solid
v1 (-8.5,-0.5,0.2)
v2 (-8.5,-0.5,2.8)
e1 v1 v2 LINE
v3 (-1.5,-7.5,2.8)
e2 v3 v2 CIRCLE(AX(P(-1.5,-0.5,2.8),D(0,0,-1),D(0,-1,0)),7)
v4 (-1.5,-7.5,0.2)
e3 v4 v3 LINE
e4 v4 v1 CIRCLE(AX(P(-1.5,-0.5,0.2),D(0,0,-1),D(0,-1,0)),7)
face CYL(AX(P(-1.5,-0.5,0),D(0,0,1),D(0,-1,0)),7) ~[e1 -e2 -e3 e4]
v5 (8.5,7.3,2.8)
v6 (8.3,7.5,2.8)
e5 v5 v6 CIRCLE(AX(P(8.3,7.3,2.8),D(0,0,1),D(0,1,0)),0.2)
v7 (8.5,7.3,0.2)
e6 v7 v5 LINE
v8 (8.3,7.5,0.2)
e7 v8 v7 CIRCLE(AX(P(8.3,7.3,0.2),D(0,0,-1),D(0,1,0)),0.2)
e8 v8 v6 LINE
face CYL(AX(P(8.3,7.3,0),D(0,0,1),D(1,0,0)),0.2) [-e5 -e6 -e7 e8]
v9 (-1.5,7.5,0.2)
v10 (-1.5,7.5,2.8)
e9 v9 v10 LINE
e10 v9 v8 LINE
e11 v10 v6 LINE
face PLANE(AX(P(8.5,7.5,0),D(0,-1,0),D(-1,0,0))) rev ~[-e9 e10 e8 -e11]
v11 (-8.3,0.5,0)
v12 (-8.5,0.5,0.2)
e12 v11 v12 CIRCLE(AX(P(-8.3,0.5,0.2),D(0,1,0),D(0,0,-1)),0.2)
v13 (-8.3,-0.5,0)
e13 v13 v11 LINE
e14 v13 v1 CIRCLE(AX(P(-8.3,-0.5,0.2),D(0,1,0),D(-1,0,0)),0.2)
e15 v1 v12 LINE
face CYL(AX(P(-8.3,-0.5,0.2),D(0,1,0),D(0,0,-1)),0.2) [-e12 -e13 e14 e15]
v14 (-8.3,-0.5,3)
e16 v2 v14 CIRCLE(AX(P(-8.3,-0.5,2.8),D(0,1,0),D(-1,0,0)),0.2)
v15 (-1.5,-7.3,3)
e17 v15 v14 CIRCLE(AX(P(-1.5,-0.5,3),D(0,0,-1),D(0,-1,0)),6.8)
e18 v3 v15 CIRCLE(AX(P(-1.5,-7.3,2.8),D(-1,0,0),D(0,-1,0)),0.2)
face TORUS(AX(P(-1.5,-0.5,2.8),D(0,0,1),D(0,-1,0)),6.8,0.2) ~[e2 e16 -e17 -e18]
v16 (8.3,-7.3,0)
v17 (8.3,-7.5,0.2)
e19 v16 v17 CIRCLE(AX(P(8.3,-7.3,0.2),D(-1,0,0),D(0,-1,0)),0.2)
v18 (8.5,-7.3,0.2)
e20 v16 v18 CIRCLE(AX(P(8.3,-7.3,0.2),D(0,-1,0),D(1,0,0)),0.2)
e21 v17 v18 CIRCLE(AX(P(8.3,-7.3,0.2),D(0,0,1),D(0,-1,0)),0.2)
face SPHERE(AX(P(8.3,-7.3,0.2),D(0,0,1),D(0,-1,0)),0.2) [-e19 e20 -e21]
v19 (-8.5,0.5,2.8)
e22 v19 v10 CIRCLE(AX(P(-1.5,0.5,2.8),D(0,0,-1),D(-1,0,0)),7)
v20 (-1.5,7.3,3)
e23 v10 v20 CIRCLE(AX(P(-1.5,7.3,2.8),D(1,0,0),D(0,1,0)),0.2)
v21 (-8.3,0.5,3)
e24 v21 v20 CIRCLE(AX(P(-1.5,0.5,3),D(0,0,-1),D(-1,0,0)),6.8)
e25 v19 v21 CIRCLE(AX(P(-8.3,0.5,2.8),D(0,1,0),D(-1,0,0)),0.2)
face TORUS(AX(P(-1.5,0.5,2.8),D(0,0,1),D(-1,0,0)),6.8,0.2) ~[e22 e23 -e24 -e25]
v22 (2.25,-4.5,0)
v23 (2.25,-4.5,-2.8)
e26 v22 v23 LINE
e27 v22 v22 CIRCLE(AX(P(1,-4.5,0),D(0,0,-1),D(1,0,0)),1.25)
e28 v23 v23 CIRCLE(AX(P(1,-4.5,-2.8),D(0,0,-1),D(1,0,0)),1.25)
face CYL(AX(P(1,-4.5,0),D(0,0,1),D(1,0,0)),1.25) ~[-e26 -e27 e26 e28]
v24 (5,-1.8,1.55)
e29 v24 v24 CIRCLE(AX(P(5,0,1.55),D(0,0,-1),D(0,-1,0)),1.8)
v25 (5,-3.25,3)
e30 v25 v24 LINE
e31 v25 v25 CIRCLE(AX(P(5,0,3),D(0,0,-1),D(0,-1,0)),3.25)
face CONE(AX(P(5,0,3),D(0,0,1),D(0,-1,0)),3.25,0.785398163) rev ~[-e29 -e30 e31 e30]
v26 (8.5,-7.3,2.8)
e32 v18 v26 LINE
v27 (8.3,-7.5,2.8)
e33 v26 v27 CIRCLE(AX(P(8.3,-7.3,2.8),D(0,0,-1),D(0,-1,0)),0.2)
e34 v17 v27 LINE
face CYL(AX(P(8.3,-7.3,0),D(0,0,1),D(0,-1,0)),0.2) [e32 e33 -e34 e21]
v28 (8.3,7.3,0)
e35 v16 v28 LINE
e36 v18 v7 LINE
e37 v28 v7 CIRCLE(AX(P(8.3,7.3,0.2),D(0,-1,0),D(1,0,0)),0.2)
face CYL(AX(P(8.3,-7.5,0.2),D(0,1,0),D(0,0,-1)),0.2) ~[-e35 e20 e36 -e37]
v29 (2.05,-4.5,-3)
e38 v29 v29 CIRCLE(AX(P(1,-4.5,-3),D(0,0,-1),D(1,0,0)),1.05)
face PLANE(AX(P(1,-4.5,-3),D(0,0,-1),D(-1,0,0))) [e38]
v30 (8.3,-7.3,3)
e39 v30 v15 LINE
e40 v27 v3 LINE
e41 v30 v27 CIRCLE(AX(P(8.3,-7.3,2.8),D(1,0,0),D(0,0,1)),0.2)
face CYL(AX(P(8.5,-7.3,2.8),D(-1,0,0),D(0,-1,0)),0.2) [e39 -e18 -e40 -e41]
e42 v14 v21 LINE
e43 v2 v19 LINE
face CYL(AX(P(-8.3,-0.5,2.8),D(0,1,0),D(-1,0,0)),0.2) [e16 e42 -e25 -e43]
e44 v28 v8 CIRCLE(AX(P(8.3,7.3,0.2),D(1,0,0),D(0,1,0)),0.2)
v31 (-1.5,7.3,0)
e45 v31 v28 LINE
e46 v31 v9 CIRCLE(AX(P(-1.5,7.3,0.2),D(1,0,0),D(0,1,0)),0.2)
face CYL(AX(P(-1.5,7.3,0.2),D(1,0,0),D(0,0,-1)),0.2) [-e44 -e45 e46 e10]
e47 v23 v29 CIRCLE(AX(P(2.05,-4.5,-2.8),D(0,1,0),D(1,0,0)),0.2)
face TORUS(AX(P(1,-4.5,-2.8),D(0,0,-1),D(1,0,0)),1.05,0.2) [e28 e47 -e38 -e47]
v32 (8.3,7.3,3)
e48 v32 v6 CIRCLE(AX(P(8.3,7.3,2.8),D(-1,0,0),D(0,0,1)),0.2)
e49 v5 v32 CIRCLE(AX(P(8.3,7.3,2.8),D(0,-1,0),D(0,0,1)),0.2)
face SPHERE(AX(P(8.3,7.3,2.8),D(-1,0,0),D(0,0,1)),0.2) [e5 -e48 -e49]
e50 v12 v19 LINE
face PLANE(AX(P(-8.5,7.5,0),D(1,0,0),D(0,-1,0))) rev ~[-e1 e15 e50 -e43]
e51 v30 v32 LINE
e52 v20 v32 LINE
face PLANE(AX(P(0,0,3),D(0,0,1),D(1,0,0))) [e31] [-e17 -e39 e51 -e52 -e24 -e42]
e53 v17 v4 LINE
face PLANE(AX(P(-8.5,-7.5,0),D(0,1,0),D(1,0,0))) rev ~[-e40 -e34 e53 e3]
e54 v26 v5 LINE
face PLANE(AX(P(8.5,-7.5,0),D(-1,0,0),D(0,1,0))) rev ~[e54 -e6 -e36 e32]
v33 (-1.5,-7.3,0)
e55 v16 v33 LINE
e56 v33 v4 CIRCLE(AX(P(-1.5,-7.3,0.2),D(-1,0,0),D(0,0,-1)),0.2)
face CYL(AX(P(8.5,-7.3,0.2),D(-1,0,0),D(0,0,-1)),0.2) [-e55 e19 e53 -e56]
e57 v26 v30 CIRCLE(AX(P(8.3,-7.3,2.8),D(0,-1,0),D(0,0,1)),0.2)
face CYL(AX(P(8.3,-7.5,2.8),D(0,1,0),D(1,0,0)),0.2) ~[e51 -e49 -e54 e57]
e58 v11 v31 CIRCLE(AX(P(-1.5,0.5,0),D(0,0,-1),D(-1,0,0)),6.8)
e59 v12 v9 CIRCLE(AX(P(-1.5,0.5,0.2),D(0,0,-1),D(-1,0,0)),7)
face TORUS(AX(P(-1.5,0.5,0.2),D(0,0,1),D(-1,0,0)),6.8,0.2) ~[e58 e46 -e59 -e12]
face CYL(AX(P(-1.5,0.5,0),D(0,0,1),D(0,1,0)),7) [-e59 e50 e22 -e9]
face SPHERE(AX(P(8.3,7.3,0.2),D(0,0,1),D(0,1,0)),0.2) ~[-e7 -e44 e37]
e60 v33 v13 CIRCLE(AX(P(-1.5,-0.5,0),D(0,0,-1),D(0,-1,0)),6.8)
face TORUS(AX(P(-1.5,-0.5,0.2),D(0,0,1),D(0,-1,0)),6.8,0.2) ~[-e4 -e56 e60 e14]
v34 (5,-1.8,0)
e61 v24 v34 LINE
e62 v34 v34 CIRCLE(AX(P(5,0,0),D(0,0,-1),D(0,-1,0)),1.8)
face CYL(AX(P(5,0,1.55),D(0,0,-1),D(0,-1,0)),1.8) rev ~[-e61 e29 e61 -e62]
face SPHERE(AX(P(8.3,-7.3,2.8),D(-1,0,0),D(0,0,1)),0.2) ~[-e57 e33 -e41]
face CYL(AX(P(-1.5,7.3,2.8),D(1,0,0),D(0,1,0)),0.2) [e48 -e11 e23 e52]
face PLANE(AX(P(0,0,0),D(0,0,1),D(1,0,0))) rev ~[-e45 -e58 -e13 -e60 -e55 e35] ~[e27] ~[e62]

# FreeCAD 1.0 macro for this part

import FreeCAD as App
import Part
import Sketcher
from FreeCAD import Vector


def edges_at(feature, points):
    """Names of the edges that pass closest to the given points."""
    edges = feature.Shape.Edges
    near = lambda p: min(range(len(edges)), key=lambda i: edges[i].distToShape(Part.Vertex(*p))[0])
    return sorted({f"Edge{near(p) + 1}" for p in points})

doc = App.newDocument("Part")
body = doc.addObject("PartDesign::Body", "Body")

# Sketch on XY plane
sketch1 = body.newObject("Sketcher::SketchObject", "Sketch")
sketch1.AttachmentSupport = (doc.getObject("XY_Plane"), [""])
sketch1.MapMode = "FlatFace"
sketch1.addGeometry(Part.LineSegment(Vector(-8, 8, 0), Vector(-8, -8, 0)), False)
sketch1.addGeometry(Part.LineSegment(Vector(-8, -8, 0), Vector(8, -8, 0)), False)
sketch1.addGeometry(Part.LineSegment(Vector(8, -8, 0), Vector(8, 8, 0)), False)
sketch1.addGeometry(Part.LineSegment(Vector(8, 8, 0), Vector(-8, 8, 0)), False)
sketch1.addConstraint(Sketcher.Constraint("Coincident", 0, 2, 1, 1))
sketch1.addConstraint(Sketcher.Constraint("Coincident", 1, 2, 2, 1))
sketch1.addConstraint(Sketcher.Constraint("Coincident", 2, 2, 3, 1))
sketch1.addConstraint(Sketcher.Constraint("Coincident", 3, 2, 0, 1))
sketch1.addConstraint(Sketcher.Constraint("Vertical", 0))
sketch1.addConstraint(Sketcher.Constraint("Horizontal", 1))
sketch1.addConstraint(Sketcher.Constraint("Vertical", 2))
sketch1.addConstraint(Sketcher.Constraint("Horizontal", 3))
sketch1.addConstraint(Sketcher.Constraint("Symmetric", 0, 2, 2, 2, -1, 1))
sketch1.addConstraint(Sketcher.Constraint("DistanceX", 0, 2, -1, 1, 8.5))
sketch1.addConstraint(Sketcher.Constraint("DistanceY", 0, 2, 0, 1, 15.0))
pad1 = body.newObject("PartDesign::Pad", "Pad")
pad1.Profile = sketch1
pad1.Length = 3
doc.recompute()

fillet = body.newObject("PartDesign::Fillet", "Fillet")
fillet.Base = (pad1, edges_at(pad1, [(-8.5, -7.5, 1.5), (-8.5, 7.5, 1.5)]))
fillet.Radius = 7

# Sketch on XY plane
sketch2 = body.newObject("Sketcher::SketchObject", "Sketch001")
sketch2.AttachmentSupport = (doc.getObject("XY_Plane"), [""])
sketch2.MapMode = "FlatFace"
sketch2.AttachmentOffset = App.Placement(Vector(0, 0, 3), App.Rotation())
sketch2.addGeometry(Part.Circle(Vector(5, 0, 0), Vector(0, 0, 1), 1.8), False)
sketch2.addConstraint(Sketcher.Constraint("PointOnObject", 0, 3, -1))
sketch2.addConstraint(Sketcher.Constraint("Diameter", 0, 3.6))
sketch2.addConstraint(Sketcher.Constraint("DistanceX", -1, 1, 0, 3, 5.0))
doc.recompute()
hole = body.newObject("PartDesign::Hole", "Hole")
hole.Profile = sketch2
hole.ThreadType = "None"
hole.Diameter = 3.6
hole.DepthType = "Dimension"
hole.Depth = 3
hole.DrillPoint = "Flat"
hole.HoleCutType = "Countersink"
hole.HoleCutDiameter = 6.5
hole.HoleCutCountersinkAngle = 90

# Sketch on XY plane
sketch3 = body.newObject("Sketcher::SketchObject", "Sketch002")
sketch3.AttachmentSupport = (doc.getObject("XY_Plane"), [""])
sketch3.MapMode = "FlatFace"
sketch3.addGeometry(Part.Circle(Vector(1, -4.5, 0), Vector(0, 0, 1), 1.2), False)
sketch3.addConstraint(Sketcher.Constraint("Diameter", 0, 2.5))
sketch3.addConstraint(Sketcher.Constraint("DistanceX", -1, 1, 0, 3, 1.0))
sketch3.addConstraint(Sketcher.Constraint("DistanceY", 0, 3, -1, 1, 4.5))
pad2 = body.newObject("PartDesign::Pad", "Pad001")
pad2.Profile = sketch3
pad2.Length = 3
pad2.Reversed = True
doc.recompute()

fillet2 = body.newObject("PartDesign::Fillet", "Fillet001")
fillet2.Base = (pad2, edges_at(pad2, [(-0.25, -4.5, -3)]))
fillet2.Radius = 0.2
doc.recompute()

fillet3 = body.newObject("PartDesign::Fillet", "Fillet002")
fillet3.Base = (fillet2, edges_at(fillet2, [
    (-6.45, -5.45, 3),
    (3.5, -7.5, 3),
    (-8.5, 0, 3),
    (-6.45, 5.45, 3),
    (3.5, 7.5, 3),
    (8.5, 0, 3),
    (8.5, -7.5, 1.5),
    (8.5, 7.5, 1.5),
    (-6.45, -5.45, 0),
    (-8.5, 0, 0),
    (-6.45, 5.45, 0),
    (3.5, 7.5, 0),
    (3.5, -7.5, 0),
    (8.5, 0, 0),
]))
fillet3.Radius = 0.2

doc.recompute()
